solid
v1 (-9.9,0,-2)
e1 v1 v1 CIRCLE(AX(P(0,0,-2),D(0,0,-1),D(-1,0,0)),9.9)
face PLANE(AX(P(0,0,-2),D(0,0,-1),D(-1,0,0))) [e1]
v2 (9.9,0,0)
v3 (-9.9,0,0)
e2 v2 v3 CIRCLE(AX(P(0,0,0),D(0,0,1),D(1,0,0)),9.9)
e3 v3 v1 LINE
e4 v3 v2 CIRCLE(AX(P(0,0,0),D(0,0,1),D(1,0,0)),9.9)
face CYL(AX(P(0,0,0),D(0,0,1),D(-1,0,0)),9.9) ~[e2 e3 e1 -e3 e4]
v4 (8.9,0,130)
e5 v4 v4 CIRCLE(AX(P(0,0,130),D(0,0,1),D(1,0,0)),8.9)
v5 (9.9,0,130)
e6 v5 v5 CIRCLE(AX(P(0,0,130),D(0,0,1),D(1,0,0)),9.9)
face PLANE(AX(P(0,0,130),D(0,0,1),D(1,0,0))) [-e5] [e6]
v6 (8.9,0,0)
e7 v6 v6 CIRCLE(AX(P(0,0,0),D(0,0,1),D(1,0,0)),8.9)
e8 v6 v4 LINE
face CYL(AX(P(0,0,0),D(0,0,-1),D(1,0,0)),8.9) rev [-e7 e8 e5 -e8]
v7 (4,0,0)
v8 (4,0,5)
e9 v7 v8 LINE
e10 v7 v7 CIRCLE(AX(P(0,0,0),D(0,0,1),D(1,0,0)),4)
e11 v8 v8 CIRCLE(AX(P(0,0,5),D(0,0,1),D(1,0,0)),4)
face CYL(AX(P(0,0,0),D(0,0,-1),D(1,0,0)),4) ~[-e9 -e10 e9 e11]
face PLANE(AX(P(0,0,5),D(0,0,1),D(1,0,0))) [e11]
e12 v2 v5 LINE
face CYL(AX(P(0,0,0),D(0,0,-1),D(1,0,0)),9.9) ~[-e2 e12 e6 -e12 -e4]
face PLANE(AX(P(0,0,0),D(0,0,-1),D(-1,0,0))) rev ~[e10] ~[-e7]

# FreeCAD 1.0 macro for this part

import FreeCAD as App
import Part
import Sketcher
Q = App.Units.Quantity

doc = App.newDocument("Part")
body = doc.addObject("PartDesign::Body", "Body")

sketch1 = doc.addObject("Sketcher::SketchObject", "Sketch")
body.addObject(sketch1)
sketch1.AttachmentSupport = (doc.XY_Plane, [""])
sketch1.MapMode = "FlatFace"
sketch1.addGeometry([
    Part.Circle(App.Vector(0, 0, 0), App.Vector(0, 0, 1), 9.9),
    Part.Circle(App.Vector(0, 0, 0), App.Vector(0, 0, 1), 8.9),
], False)
sketch1.addConstraint([
    Sketcher.Constraint("Coincident", 0, 3, -1, 1),
    Sketcher.Constraint("Coincident", 1, 3, -1, 1),
    Sketcher.Constraint("Diameter", 0, Q("19.8 mm")),
    Sketcher.Constraint("Diameter", 1, Q("17.8 mm")),
])
pad1 = doc.addObject("PartDesign::Pad", "Pad")
body.addObject(pad1)
pad1.Profile = sketch1
pad1.Length = 130

sketch2 = doc.addObject("Sketcher::SketchObject", "Sketch001")
body.addObject(sketch2)
sketch2.AttachmentSupport = (doc.XY_Plane, [""])
sketch2.MapMode = "FlatFace"
sketch2.addGeometry(Part.Circle(App.Vector(0, 0, 0), App.Vector(0, 0, 1), 9.9), False)
sketch2.addConstraint([
    Sketcher.Constraint("Coincident", 0, 3, -1, 1),
    Sketcher.Constraint("Diameter", 0, Q("19.8 mm")),
])
pad2 = doc.addObject("PartDesign::Pad", "Pad001")
body.addObject(pad2)
pad2.Profile = sketch2
pad2.Length = 2
pad2.Reversed = True

sketch3 = doc.addObject("Sketcher::SketchObject", "Sketch002")
body.addObject(sketch3)
sketch3.AttachmentSupport = (doc.XY_Plane, [""])
sketch3.MapMode = "FlatFace"
sketch3.addGeometry(Part.Circle(App.Vector(0, 0, 0), App.Vector(0, 0, 1), 4), False)
sketch3.addConstraint([
    Sketcher.Constraint("Coincident", 0, 3, -1, 1),
    Sketcher.Constraint("Diameter", 0, Q("8 mm")),
])
pad3 = doc.addObject("PartDesign::Pad", "Pad002")
body.addObject(pad3)
pad3.Profile = sketch3
pad3.Length = 5

doc.recompute()
